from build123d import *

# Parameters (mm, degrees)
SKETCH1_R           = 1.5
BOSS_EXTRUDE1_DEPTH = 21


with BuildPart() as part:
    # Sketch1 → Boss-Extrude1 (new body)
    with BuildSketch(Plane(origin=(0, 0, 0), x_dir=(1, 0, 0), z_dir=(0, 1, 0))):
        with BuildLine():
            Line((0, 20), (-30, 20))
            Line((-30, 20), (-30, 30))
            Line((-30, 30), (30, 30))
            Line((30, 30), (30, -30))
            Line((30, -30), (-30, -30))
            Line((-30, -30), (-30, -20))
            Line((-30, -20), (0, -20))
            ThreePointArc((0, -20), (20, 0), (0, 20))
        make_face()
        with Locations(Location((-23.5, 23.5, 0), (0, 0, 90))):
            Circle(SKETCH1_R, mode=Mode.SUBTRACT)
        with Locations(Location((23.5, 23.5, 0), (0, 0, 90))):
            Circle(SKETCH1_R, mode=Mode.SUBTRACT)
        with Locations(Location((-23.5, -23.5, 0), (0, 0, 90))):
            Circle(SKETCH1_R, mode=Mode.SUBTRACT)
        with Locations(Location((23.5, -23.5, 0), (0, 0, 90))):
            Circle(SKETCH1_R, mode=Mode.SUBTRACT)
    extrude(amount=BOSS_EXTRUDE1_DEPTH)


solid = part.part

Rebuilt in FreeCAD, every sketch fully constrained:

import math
import FreeCAD as App
import Part
import Sketcher

V = App.Vector

doc = App.newDocument("Part")
body = doc.addObject("PartDesign::Body", "Body")

sketch1 = doc.addObject("Sketcher::SketchObject", "Sketch")
body.addObject(sketch1)
sketch1.AttachmentSupport = (doc.XZ_Plane, [""])
sketch1.MapMode = "FlatFace"
sketch1.addGeometry([
    Part.LineSegment(V(-30, -20, 0), V(0, -20, 0)),
    Part.ArcOfCircle(Part.Circle(V(0, 0, 0), V(0, 0, 1), 20), math.radians(-90), math.radians(90)),
    Part.LineSegment(V(0, 20, 0), V(-30, 20, 0)),
    Part.LineSegment(V(-30, 20, 0), V(-30, 30, 0)),
    Part.LineSegment(V(-30, 30, 0), V(30, 30, 0)),
    Part.LineSegment(V(30, 30, 0), V(30, -30, 0)),
    Part.LineSegment(V(30, -30, 0), V(-30, -30, 0)),
    Part.LineSegment(V(-30, -30, 0), V(-30, -20, 0)),
    Part.Circle(V(23.5, 23.5, 0), V(0, 0, 1), 1.5),
    Part.Circle(V(-23.5, 23.5, 0), V(0, 0, 1), 1.5),
    Part.Circle(V(23.5, -23.5, 0), V(0, 0, 1), 1.5),
    Part.Circle(V(-23.5, -23.5, 0), V(0, 0, 1), 1.5),
], False)
sketch1.addConstraint([
    Sketcher.Constraint("Tangent", 0, 2, 1, 1),
    Sketcher.Constraint("Tangent", 1, 2, 2, 1),
    Sketcher.Constraint("Coincident", 2, 2, 3, 1),
    Sketcher.Constraint("Coincident", 3, 2, 4, 1),
    Sketcher.Constraint("Coincident", 4, 2, 5, 1),
    Sketcher.Constraint("Coincident", 5, 2, 6, 1),
    Sketcher.Constraint("Coincident", 6, 2, 7, 1),
    Sketcher.Constraint("Coincident", 7, 2, 0, 1),
    Sketcher.Constraint("Horizontal", 0),
    Sketcher.Constraint("Horizontal", 2),
    Sketcher.Constraint("Vertical", 3),
    Sketcher.Constraint("Horizontal", 4),
    Sketcher.Constraint("Vertical", 5),
    Sketcher.Constraint("Horizontal", 6),
    Sketcher.Constraint("Vertical", 7),
    Sketcher.Constraint("Coincident", 1, 3, -1, 1),
    Sketcher.Constraint("Equal", 8, 9),
    Sketcher.Constraint("Equal", 9, 10),
    Sketcher.Constraint("Equal", 10, 11),
    Sketcher.Constraint("Symmetric", 9, 3, 10, 3, -1, 1),
    Sketcher.Constraint("Symmetric", 8, 3, 11, 3, -1, 1),
    Sketcher.Constraint("Symmetric", 3, 2, 5, 2, -1, 1),
    Sketcher.Constraint("Symmetric", 8, 3, 9, 3, -2),
    Sketcher.Constraint("Vertical", 3, 2, 6, 2),
    Sketcher.Constraint("Equal", 6, 5),
    Sketcher.Constraint("Diameter", 8, 3.0),
    Sketcher.Constraint("Radius", 1, 20.0),
    Sketcher.Constraint("DistanceX", 0, 1, 0, 2, 30.0),
    Sketcher.Constraint("DistanceX", 9, 3, 8, 3, 47.0),
    Sketcher.Constraint("DistanceY", 10, 3, 8, 3, 47.0),
])
pad1 = doc.addObject("PartDesign::Pad", "Pad")
body.addObject(pad1)
pad1.Profile = sketch1
pad1.Length = 21
pad1.Reversed = True

doc.recompute()
